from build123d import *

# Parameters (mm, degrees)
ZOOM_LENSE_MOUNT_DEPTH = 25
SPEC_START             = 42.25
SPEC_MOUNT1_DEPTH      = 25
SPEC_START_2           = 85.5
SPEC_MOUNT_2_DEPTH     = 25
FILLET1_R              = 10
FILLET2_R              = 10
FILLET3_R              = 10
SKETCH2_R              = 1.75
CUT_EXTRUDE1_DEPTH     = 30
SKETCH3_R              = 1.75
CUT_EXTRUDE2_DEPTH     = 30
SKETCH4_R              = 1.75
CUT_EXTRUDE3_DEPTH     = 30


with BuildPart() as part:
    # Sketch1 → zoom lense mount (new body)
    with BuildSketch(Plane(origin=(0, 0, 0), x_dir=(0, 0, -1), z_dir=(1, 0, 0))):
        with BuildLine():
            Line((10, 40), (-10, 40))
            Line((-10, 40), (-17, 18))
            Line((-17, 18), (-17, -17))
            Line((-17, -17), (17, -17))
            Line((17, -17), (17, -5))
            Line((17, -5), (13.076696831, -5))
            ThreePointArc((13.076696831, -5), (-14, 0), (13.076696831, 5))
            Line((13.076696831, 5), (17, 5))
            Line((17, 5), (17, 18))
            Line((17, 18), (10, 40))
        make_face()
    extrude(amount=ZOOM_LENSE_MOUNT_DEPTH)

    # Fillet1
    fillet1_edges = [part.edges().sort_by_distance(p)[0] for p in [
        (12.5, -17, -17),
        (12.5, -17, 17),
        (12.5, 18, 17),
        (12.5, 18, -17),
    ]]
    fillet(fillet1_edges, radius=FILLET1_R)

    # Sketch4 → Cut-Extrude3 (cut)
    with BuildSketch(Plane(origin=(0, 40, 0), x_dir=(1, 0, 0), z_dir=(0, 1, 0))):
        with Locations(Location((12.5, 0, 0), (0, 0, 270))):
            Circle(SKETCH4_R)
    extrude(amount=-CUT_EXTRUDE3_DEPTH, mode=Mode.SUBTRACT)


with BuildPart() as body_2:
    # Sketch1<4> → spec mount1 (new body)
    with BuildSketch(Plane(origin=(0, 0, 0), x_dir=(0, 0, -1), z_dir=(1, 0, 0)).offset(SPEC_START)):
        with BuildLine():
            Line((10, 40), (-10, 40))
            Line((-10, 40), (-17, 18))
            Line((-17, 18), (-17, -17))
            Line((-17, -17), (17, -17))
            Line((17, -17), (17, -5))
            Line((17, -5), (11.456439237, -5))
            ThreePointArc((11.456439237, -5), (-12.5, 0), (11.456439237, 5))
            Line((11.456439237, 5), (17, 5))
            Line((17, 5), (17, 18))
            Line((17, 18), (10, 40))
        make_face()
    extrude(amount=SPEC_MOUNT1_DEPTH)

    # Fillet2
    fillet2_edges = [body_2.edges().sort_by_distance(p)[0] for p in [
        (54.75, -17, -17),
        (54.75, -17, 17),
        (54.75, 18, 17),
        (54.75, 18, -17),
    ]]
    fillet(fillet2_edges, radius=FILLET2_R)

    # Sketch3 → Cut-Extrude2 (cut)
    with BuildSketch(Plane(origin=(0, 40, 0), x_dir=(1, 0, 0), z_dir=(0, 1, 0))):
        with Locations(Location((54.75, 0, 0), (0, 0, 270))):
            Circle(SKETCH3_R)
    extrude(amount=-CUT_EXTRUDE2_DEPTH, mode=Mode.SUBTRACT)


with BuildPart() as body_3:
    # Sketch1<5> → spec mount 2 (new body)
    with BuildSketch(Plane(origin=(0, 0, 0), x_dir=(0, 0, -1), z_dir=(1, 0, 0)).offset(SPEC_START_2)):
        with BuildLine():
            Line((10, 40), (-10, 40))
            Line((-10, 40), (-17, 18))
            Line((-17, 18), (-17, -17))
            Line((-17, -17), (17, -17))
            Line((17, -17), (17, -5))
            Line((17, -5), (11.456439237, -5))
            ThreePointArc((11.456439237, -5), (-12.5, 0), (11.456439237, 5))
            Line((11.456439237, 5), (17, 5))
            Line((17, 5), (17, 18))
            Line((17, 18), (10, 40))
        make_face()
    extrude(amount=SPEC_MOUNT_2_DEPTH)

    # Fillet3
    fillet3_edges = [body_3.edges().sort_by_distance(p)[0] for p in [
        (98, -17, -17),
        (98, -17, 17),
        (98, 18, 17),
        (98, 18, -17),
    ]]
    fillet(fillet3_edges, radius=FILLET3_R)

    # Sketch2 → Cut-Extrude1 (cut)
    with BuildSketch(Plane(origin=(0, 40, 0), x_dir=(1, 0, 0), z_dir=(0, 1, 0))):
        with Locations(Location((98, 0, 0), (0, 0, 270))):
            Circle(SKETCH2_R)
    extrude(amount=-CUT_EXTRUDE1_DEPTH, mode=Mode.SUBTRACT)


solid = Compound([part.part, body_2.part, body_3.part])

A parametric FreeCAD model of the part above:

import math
import FreeCAD as App
import Part
import Sketcher

V = App.Vector
Q = App.Units.Quantity


def edges_at(feature, points):
    """Names of the edges that pass closest to the given points."""
    edges = feature.Shape.Edges
    near = lambda p: min(range(len(edges)), key=lambda i: edges[i].distToShape(Part.Vertex(*p))[0])
    return sorted({f"Edge{near(p) + 1}" for p in points})

doc = App.newDocument("Part")
body = doc.addObject("PartDesign::Body", "Body")

# Sketch on YZ plane
sketch1 = body.newObject("Sketcher::SketchObject", "Sketch")
sketch1.AttachmentSupport = (doc.getObject("YZ_Plane"), [""])
sketch1.MapMode = "FlatFace"
sketch1.addGeometry(Part.LineSegment(V(40, -10, 0), V(40, 10, 0)), False)
sketch1.addGeometry(Part.LineSegment(V(40, 10, 0), V(18, 17, 0)), False)
sketch1.addGeometry(Part.LineSegment(V(18, 17, 0), V(-17, 17, 0)), False)
sketch1.addGeometry(Part.LineSegment(V(-17, 17, 0), V(-17, -17, 0)), False)
sketch1.addGeometry(Part.LineSegment(V(-17, -17, 0), V(-5, -17, 0)), False)
sketch1.addGeometry(Part.LineSegment(V(-5, -17, 0), V(-5, -13.076697, 0)), False)
sketch1.addGeometry(Part.ArcOfCircle(Part.Circle(V(0, 0, 0), V(0, 0, 1), 14), math.radians(-69.075168), math.radians(249.075168)), False)
sketch1.addGeometry(Part.LineSegment(V(5, -13.076697, 0), V(5, -17, 0)), False)
sketch1.addGeometry(Part.LineSegment(V(5, -17, 0), V(18, -17, 0)), False)
sketch1.addGeometry(Part.LineSegment(V(18, -17, 0), V(40, -10, 0)), False)
sketch1.addConstraint(Sketcher.Constraint("Coincident", 0, 2, 1, 1))
sketch1.addConstraint(Sketcher.Constraint("Coincident", 1, 2, 2, 1))
sketch1.addConstraint(Sketcher.Constraint("Coincident", 2, 2, 3, 1))
sketch1.addConstraint(Sketcher.Constraint("Coincident", 3, 2, 4, 1))
sketch1.addConstraint(Sketcher.Constraint("Coincident", 4, 2, 5, 1))
sketch1.addConstraint(Sketcher.Constraint("Coincident", 5, 2, 6, 2))
sketch1.addConstraint(Sketcher.Constraint("Coincident", 6, 1, 7, 1))
sketch1.addConstraint(Sketcher.Constraint("Coincident", 7, 2, 8, 1))
sketch1.addConstraint(Sketcher.Constraint("Coincident", 8, 2, 9, 1))
sketch1.addConstraint(Sketcher.Constraint("Coincident", 9, 2, 0, 1))
sketch1.addConstraint(Sketcher.Constraint("Vertical", 0))
sketch1.addConstraint(Sketcher.Constraint("Horizontal", 2))
sketch1.addConstraint(Sketcher.Constraint("Vertical", 3))
sketch1.addConstraint(Sketcher.Constraint("Horizontal", 4))
sketch1.addConstraint(Sketcher.Constraint("Vertical", 5))
sketch1.addConstraint(Sketcher.Constraint("Vertical", 7))
sketch1.addConstraint(Sketcher.Constraint("Horizontal", 8))
sketch1.addConstraint(Sketcher.Constraint("Coincident", 6, 3, -1, 1))
sketch1.addConstraint(Sketcher.Constraint("Symmetric", 4, 2, 7, 2, -2))
sketch1.addConstraint(Sketcher.Constraint("Symmetric", 1, 2, 8, 2, -1))
sketch1.addConstraint(Sketcher.Constraint("Equal", 1, 9))
sketch1.addConstraint(Sketcher.Constraint("Radius", 6, Q("14 mm")))
sketch1.addConstraint(Sketcher.Constraint("DistanceX", 2, 2, 2, 1, Q("35 mm")))
sketch1.addConstraint(Sketcher.Constraint("DistanceX", 4, 1, 4, 2, Q("12 mm")))
sketch1.addConstraint(Sketcher.Constraint("DistanceX", 8, 1, 8, 2, Q("13 mm")))
sketch1.addConstraint(Sketcher.Constraint("DistanceY", 0, 1, 0, 2, Q("20 mm")))
sketch1.addConstraint(Sketcher.Constraint("DistanceY", 3, 2, 3, 1, Q("34 mm")))
sketch1.addConstraint(Sketcher.Constraint("DistanceX", -1, 1, 0, 2, Q("40 mm")))
pad1 = body.newObject("PartDesign::Pad", "Pad")
pad1.Profile = sketch1
pad1.Length = 25
doc.recompute()

fillet = body.newObject("PartDesign::Fillet", "Fillet")
fillet.Base = (pad1, edges_at(pad1, [
    (12.5, -17, -17),
    (12.5, -17, 17),
    (12.5, 18, 17),
    (12.5, 18, -17),
]))
fillet.Radius = 10

# Sketch on XZ plane
sketch2 = body.newObject("Sketcher::SketchObject", "Sketch001")
sketch2.AttachmentSupport = (doc.getObject("XZ_Plane"), [""])
sketch2.MapMode = "FlatFace"
sketch2.AttachmentOffset = App.Placement(V(0, 0, -40), App.Rotation())
sketch2.addGeometry(Part.Circle(V(12.5, 0, 0), V(0, 0, 1), 1.75), False)
sketch2.addConstraint(Sketcher.Constraint("PointOnObject", 0, 3, -1))
sketch2.addConstraint(Sketcher.Constraint("Diameter", 0, Q("3.5 mm")))
sketch2.addConstraint(Sketcher.Constraint("DistanceX", -1, 1, 0, 3, Q("12.5 mm")))
pocket1 = body.newObject("PartDesign::Pocket", "Pocket")
pocket1.Profile = sketch2
pocket1.Length = 30
pocket1.Reversed = True
body2 = doc.addObject("PartDesign::Body", "Body001")

# Sketch on YZ plane
sketch3 = body2.newObject("Sketcher::SketchObject", "Sketch002")
sketch3.AttachmentSupport = (doc.getObject("YZ_Plane001"), [""])
sketch3.MapMode = "FlatFace"
sketch3.AttachmentOffset = App.Placement(V(0, 0, 42.25), App.Rotation())
sketch3.addGeometry(Part.LineSegment(V(40, -10, 0), V(40, 10, 0)), False)
sketch3.addGeometry(Part.LineSegment(V(40, 10, 0), V(18, 17, 0)), False)
sketch3.addGeometry(Part.LineSegment(V(18, 17, 0), V(-17, 17, 0)), False)
sketch3.addGeometry(Part.LineSegment(V(-17, 17, 0), V(-17, -17, 0)), False)
sketch3.addGeometry(Part.LineSegment(V(-17, -17, 0), V(-5, -17, 0)), False)
sketch3.addGeometry(Part.LineSegment(V(-5, -17, 0), V(-5, -11.456439, 0)), False)
sketch3.addGeometry(Part.ArcOfCircle(Part.Circle(V(0, 0, 0), V(0, 0, 1), 12.5), math.radians(-66.421822), math.radians(246.421822)), False)
sketch3.addGeometry(Part.LineSegment(V(5, -11.456439, 0), V(5, -17, 0)), False)
sketch3.addGeometry(Part.LineSegment(V(5, -17, 0), V(18, -17, 0)), False)
sketch3.addGeometry(Part.LineSegment(V(18, -17, 0), V(40, -10, 0)), False)
sketch3.addConstraint(Sketcher.Constraint("Coincident", 0, 2, 1, 1))
sketch3.addConstraint(Sketcher.Constraint("Coincident", 1, 2, 2, 1))
sketch3.addConstraint(Sketcher.Constraint("Coincident", 2, 2, 3, 1))
sketch3.addConstraint(Sketcher.Constraint("Coincident", 3, 2, 4, 1))
sketch3.addConstraint(Sketcher.Constraint("Coincident", 4, 2, 5, 1))
sketch3.addConstraint(Sketcher.Constraint("Coincident", 5, 2, 6, 2))
sketch3.addConstraint(Sketcher.Constraint("Coincident", 6, 1, 7, 1))
sketch3.addConstraint(Sketcher.Constraint("Coincident", 7, 2, 8, 1))
sketch3.addConstraint(Sketcher.Constraint("Coincident", 8, 2, 9, 1))
sketch3.addConstraint(Sketcher.Constraint("Coincident", 9, 2, 0, 1))
sketch3.addConstraint(Sketcher.Constraint("Vertical", 0))
sketch3.addConstraint(Sketcher.Constraint("Horizontal", 2))
sketch3.addConstraint(Sketcher.Constraint("Vertical", 3))
sketch3.addConstraint(Sketcher.Constraint("Horizontal", 4))
sketch3.addConstraint(Sketcher.Constraint("Vertical", 5))
sketch3.addConstraint(Sketcher.Constraint("Vertical", 7))
sketch3.addConstraint(Sketcher.Constraint("Horizontal", 8))
sketch3.addConstraint(Sketcher.Constraint("Coincident", 6, 3, -1, 1))
sketch3.addConstraint(Sketcher.Constraint("Symmetric", 4, 2, 7, 2, -2))
sketch3.addConstraint(Sketcher.Constraint("Symmetric", 1, 2, 8, 2, -1))
sketch3.addConstraint(Sketcher.Constraint("Equal", 1, 9))
sketch3.addConstraint(Sketcher.Constraint("Radius", 6, Q("12.5 mm")))
sketch3.addConstraint(Sketcher.Constraint("DistanceX", 2, 2, 2, 1, Q("35 mm")))
sketch3.addConstraint(Sketcher.Constraint("DistanceX", 4, 1, 4, 2, Q("12 mm")))
sketch3.addConstraint(Sketcher.Constraint("DistanceX", 8, 1, 8, 2, Q("13 mm")))
sketch3.addConstraint(Sketcher.Constraint("DistanceY", 0, 1, 0, 2, Q("20 mm")))
sketch3.addConstraint(Sketcher.Constraint("DistanceY", 3, 2, 3, 1, Q("34 mm")))
sketch3.addConstraint(Sketcher.Constraint("DistanceX", -1, 1, 0, 2, Q("40 mm")))
pad2 = body2.newObject("PartDesign::Pad", "Pad001")
pad2.Profile = sketch3
pad2.Length = 25
doc.recompute()

fillet2 = body2.newObject("PartDesign::Fillet", "Fillet001")
fillet2.Base = (pad2, edges_at(pad2, [
    (54.75, -17, -17),
    (54.75, -17, 17),
    (54.75, 18, 17),
    (54.75, 18, -17),
]))
fillet2.Radius = 10

# Sketch on XZ plane
sketch4 = body2.newObject("Sketcher::SketchObject", "Sketch003")
sketch4.AttachmentSupport = (doc.getObject("XZ_Plane001"), [""])
sketch4.MapMode = "FlatFace"
sketch4.AttachmentOffset = App.Placement(V(0, 0, -40), App.Rotation())
sketch4.addGeometry(Part.Circle(V(54.75, 0, 0), V(0, 0, 1), 1.75), False)
sketch4.addConstraint(Sketcher.Constraint("PointOnObject", 0, 3, -1))
sketch4.addConstraint(Sketcher.Constraint("Diameter", 0, Q("3.5 mm")))
sketch4.addConstraint(Sketcher.Constraint("DistanceX", -1, 1, 0, 3, Q("54.75 mm")))
pocket2 = body2.newObject("PartDesign::Pocket", "Pocket001")
pocket2.Profile = sketch4
pocket2.Length = 30
pocket2.Reversed = True
body3 = doc.addObject("PartDesign::Body", "Body002")

# Sketch on YZ plane
sketch5 = body3.newObject("Sketcher::SketchObject", "Sketch004")
sketch5.AttachmentSupport = (doc.getObject("YZ_Plane002"), [""])
sketch5.MapMode = "FlatFace"
sketch5.AttachmentOffset = App.Placement(V(0, 0, 85.5), App.Rotation())
sketch5.addGeometry(Part.LineSegment(V(40, -10, 0), V(40, 10, 0)), False)
sketch5.addGeometry(Part.LineSegment(V(40, 10, 0), V(18, 17, 0)), False)
sketch5.addGeometry(Part.LineSegment(V(18, 17, 0), V(-17, 17, 0)), False)
sketch5.addGeometry(Part.LineSegment(V(-17, 17, 0), V(-17, -17, 0)), False)
sketch5.addGeometry(Part.LineSegment(V(-17, -17, 0), V(-5, -17, 0)), False)
sketch5.addGeometry(Part.LineSegment(V(-5, -17, 0), V(-5, -11.456439, 0)), False)
sketch5.addGeometry(Part.ArcOfCircle(Part.Circle(V(0, 0, 0), V(0, 0, 1), 12.5), math.radians(-66.421822), math.radians(246.421822)), False)
sketch5.addGeometry(Part.LineSegment(V(5, -11.456439, 0), V(5, -17, 0)), False)
sketch5.addGeometry(Part.LineSegment(V(5, -17, 0), V(18, -17, 0)), False)
sketch5.addGeometry(Part.LineSegment(V(18, -17, 0), V(40, -10, 0)), False)
sketch5.addConstraint(Sketcher.Constraint("Coincident", 0, 2, 1, 1))
sketch5.addConstraint(Sketcher.Constraint("Coincident", 1, 2, 2, 1))
sketch5.addConstraint(Sketcher.Constraint("Coincident", 2, 2, 3, 1))
sketch5.addConstraint(Sketcher.Constraint("Coincident", 3, 2, 4, 1))
sketch5.addConstraint(Sketcher.Constraint("Coincident", 4, 2, 5, 1))
sketch5.addConstraint(Sketcher.Constraint("Coincident", 5, 2, 6, 2))
sketch5.addConstraint(Sketcher.Constraint("Coincident", 6, 1, 7, 1))
sketch5.addConstraint(Sketcher.Constraint("Coincident", 7, 2, 8, 1))
sketch5.addConstraint(Sketcher.Constraint("Coincident", 8, 2, 9, 1))
sketch5.addConstraint(Sketcher.Constraint("Coincident", 9, 2, 0, 1))
sketch5.addConstraint(Sketcher.Constraint("Vertical", 0))
sketch5.addConstraint(Sketcher.Constraint("Horizontal", 2))
sketch5.addConstraint(Sketcher.Constraint("Vertical", 3))
sketch5.addConstraint(Sketcher.Constraint("Horizontal", 4))
sketch5.addConstraint(Sketcher.Constraint("Vertical", 5))
sketch5.addConstraint(Sketcher.Constraint("Vertical", 7))
sketch5.addConstraint(Sketcher.Constraint("Horizontal", 8))
sketch5.addConstraint(Sketcher.Constraint("Coincident", 6, 3, -1, 1))
sketch5.addConstraint(Sketcher.Constraint("Symmetric", 4, 2, 7, 2, -2))
sketch5.addConstraint(Sketcher.Constraint("Symmetric", 1, 2, 8, 2, -1))
sketch5.addConstraint(Sketcher.Constraint("Equal", 1, 9))
sketch5.addConstraint(Sketcher.Constraint("Radius", 6, Q("12.5 mm")))
sketch5.addConstraint(Sketcher.Constraint("DistanceX", 2, 2, 2, 1, Q("35 mm")))
sketch5.addConstraint(Sketcher.Constraint("DistanceX", 4, 1, 4, 2, Q("12 mm")))
sketch5.addConstraint(Sketcher.Constraint("DistanceX", 8, 1, 8, 2, Q("13 mm")))
sketch5.addConstraint(Sketcher.Constraint("DistanceY", 0, 1, 0, 2, Q("20 mm")))
sketch5.addConstraint(Sketcher.Constraint("DistanceY", 3, 2, 3, 1, Q("34 mm")))
sketch5.addConstraint(Sketcher.Constraint("DistanceX", -1, 1, 0, 2, Q("40 mm")))
pad3 = body3.newObject("PartDesign::Pad", "Pad002")
pad3.Profile = sketch5
pad3.Length = 25
doc.recompute()

fillet3 = body3.newObject("PartDesign::Fillet", "Fillet002")
fillet3.Base = (pad3, edges_at(pad3, [
    (98, -17, -17),
    (98, -17, 17),
    (98, 18, 17),
    (98, 18, -17),
]))
fillet3.Radius = 10

# Sketch on XZ plane
sketch6 = body3.newObject("Sketcher::SketchObject", "Sketch005")
sketch6.AttachmentSupport = (doc.getObject("XZ_Plane002"), [""])
sketch6.MapMode = "FlatFace"
sketch6.AttachmentOffset = App.Placement(V(0, 0, -40), App.Rotation())
sketch6.addGeometry(Part.Circle(V(98, 0, 0), V(0, 0, 1), 1.75), False)
sketch6.addConstraint(Sketcher.Constraint("PointOnObject", 0, 3, -1))
sketch6.addConstraint(Sketcher.Constraint("Diameter", 0, Q("3.5 mm")))
sketch6.addConstraint(Sketcher.Constraint("DistanceX", -1, 1, 0, 3, Q("98 mm")))
pocket3 = body3.newObject("PartDesign::Pocket", "Pocket002")
pocket3.Profile = sketch6
pocket3.Length = 30
pocket3.Reversed = True

doc.recompute()
